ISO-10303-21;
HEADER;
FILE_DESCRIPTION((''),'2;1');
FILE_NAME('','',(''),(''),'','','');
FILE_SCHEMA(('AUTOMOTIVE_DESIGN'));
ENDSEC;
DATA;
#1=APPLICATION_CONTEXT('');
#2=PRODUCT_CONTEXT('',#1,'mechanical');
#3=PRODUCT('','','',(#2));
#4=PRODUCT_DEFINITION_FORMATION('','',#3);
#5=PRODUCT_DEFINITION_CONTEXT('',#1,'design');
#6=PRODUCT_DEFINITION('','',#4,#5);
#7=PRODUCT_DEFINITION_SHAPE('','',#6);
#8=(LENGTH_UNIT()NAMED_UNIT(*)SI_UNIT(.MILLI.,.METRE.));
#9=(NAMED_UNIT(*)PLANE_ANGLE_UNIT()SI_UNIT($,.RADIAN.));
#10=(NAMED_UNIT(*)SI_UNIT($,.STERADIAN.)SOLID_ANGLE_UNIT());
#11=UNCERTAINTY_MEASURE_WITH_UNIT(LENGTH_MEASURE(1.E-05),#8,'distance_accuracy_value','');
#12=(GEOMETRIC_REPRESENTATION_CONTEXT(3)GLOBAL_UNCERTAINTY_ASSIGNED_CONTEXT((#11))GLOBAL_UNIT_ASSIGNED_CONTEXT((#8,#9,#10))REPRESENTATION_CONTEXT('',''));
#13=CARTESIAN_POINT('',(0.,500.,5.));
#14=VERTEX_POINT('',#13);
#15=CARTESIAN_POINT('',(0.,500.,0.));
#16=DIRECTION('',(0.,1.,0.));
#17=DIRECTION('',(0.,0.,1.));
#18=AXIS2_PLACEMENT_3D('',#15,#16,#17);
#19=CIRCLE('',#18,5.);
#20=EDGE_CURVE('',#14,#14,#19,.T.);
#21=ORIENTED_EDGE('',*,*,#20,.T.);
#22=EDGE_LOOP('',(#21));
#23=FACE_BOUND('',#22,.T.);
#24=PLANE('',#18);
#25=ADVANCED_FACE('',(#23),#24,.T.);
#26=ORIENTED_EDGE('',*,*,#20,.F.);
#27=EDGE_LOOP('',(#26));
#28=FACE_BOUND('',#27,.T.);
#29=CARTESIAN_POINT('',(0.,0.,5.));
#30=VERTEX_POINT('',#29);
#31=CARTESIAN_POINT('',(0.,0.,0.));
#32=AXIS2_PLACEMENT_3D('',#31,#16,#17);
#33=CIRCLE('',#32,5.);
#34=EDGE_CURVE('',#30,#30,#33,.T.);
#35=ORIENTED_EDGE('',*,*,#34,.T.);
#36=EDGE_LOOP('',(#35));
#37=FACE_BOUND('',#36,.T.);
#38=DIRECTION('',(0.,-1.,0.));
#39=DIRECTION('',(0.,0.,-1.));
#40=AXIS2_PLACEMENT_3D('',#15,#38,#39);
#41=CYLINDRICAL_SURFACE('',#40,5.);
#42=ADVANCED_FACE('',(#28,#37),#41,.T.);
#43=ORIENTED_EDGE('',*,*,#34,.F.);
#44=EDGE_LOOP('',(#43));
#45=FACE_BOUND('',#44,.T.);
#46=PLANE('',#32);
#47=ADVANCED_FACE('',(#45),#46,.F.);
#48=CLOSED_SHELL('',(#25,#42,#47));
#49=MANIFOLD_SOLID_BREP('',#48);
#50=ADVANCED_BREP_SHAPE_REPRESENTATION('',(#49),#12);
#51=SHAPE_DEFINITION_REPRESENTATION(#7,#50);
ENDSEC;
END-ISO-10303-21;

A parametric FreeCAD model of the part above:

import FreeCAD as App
import Part
import Sketcher

V = App.Vector

doc = App.newDocument("Part")
body = doc.addObject("PartDesign::Body", "Body")

# Sketch on XZ plane
sketch1 = body.newObject("Sketcher::SketchObject", "Sketch")
sketch1.AttachmentSupport = (doc.getObject("XZ_Plane"), [""])
sketch1.MapMode = "FlatFace"
sketch1.addGeometry(Part.Circle(V(0, 0, 0), V(0, 0, 1), 5), False)
sketch1.addConstraint([
    Sketcher.Constraint("Coincident", 0, 3, -1, 1),
    Sketcher.Constraint("Diameter", 0, 10.0),
])
pad1 = body.newObject("PartDesign::Pad", "Pad")
pad1.Profile = sketch1
pad1.Length = 500
pad1.Reversed = True

doc.recompute()
